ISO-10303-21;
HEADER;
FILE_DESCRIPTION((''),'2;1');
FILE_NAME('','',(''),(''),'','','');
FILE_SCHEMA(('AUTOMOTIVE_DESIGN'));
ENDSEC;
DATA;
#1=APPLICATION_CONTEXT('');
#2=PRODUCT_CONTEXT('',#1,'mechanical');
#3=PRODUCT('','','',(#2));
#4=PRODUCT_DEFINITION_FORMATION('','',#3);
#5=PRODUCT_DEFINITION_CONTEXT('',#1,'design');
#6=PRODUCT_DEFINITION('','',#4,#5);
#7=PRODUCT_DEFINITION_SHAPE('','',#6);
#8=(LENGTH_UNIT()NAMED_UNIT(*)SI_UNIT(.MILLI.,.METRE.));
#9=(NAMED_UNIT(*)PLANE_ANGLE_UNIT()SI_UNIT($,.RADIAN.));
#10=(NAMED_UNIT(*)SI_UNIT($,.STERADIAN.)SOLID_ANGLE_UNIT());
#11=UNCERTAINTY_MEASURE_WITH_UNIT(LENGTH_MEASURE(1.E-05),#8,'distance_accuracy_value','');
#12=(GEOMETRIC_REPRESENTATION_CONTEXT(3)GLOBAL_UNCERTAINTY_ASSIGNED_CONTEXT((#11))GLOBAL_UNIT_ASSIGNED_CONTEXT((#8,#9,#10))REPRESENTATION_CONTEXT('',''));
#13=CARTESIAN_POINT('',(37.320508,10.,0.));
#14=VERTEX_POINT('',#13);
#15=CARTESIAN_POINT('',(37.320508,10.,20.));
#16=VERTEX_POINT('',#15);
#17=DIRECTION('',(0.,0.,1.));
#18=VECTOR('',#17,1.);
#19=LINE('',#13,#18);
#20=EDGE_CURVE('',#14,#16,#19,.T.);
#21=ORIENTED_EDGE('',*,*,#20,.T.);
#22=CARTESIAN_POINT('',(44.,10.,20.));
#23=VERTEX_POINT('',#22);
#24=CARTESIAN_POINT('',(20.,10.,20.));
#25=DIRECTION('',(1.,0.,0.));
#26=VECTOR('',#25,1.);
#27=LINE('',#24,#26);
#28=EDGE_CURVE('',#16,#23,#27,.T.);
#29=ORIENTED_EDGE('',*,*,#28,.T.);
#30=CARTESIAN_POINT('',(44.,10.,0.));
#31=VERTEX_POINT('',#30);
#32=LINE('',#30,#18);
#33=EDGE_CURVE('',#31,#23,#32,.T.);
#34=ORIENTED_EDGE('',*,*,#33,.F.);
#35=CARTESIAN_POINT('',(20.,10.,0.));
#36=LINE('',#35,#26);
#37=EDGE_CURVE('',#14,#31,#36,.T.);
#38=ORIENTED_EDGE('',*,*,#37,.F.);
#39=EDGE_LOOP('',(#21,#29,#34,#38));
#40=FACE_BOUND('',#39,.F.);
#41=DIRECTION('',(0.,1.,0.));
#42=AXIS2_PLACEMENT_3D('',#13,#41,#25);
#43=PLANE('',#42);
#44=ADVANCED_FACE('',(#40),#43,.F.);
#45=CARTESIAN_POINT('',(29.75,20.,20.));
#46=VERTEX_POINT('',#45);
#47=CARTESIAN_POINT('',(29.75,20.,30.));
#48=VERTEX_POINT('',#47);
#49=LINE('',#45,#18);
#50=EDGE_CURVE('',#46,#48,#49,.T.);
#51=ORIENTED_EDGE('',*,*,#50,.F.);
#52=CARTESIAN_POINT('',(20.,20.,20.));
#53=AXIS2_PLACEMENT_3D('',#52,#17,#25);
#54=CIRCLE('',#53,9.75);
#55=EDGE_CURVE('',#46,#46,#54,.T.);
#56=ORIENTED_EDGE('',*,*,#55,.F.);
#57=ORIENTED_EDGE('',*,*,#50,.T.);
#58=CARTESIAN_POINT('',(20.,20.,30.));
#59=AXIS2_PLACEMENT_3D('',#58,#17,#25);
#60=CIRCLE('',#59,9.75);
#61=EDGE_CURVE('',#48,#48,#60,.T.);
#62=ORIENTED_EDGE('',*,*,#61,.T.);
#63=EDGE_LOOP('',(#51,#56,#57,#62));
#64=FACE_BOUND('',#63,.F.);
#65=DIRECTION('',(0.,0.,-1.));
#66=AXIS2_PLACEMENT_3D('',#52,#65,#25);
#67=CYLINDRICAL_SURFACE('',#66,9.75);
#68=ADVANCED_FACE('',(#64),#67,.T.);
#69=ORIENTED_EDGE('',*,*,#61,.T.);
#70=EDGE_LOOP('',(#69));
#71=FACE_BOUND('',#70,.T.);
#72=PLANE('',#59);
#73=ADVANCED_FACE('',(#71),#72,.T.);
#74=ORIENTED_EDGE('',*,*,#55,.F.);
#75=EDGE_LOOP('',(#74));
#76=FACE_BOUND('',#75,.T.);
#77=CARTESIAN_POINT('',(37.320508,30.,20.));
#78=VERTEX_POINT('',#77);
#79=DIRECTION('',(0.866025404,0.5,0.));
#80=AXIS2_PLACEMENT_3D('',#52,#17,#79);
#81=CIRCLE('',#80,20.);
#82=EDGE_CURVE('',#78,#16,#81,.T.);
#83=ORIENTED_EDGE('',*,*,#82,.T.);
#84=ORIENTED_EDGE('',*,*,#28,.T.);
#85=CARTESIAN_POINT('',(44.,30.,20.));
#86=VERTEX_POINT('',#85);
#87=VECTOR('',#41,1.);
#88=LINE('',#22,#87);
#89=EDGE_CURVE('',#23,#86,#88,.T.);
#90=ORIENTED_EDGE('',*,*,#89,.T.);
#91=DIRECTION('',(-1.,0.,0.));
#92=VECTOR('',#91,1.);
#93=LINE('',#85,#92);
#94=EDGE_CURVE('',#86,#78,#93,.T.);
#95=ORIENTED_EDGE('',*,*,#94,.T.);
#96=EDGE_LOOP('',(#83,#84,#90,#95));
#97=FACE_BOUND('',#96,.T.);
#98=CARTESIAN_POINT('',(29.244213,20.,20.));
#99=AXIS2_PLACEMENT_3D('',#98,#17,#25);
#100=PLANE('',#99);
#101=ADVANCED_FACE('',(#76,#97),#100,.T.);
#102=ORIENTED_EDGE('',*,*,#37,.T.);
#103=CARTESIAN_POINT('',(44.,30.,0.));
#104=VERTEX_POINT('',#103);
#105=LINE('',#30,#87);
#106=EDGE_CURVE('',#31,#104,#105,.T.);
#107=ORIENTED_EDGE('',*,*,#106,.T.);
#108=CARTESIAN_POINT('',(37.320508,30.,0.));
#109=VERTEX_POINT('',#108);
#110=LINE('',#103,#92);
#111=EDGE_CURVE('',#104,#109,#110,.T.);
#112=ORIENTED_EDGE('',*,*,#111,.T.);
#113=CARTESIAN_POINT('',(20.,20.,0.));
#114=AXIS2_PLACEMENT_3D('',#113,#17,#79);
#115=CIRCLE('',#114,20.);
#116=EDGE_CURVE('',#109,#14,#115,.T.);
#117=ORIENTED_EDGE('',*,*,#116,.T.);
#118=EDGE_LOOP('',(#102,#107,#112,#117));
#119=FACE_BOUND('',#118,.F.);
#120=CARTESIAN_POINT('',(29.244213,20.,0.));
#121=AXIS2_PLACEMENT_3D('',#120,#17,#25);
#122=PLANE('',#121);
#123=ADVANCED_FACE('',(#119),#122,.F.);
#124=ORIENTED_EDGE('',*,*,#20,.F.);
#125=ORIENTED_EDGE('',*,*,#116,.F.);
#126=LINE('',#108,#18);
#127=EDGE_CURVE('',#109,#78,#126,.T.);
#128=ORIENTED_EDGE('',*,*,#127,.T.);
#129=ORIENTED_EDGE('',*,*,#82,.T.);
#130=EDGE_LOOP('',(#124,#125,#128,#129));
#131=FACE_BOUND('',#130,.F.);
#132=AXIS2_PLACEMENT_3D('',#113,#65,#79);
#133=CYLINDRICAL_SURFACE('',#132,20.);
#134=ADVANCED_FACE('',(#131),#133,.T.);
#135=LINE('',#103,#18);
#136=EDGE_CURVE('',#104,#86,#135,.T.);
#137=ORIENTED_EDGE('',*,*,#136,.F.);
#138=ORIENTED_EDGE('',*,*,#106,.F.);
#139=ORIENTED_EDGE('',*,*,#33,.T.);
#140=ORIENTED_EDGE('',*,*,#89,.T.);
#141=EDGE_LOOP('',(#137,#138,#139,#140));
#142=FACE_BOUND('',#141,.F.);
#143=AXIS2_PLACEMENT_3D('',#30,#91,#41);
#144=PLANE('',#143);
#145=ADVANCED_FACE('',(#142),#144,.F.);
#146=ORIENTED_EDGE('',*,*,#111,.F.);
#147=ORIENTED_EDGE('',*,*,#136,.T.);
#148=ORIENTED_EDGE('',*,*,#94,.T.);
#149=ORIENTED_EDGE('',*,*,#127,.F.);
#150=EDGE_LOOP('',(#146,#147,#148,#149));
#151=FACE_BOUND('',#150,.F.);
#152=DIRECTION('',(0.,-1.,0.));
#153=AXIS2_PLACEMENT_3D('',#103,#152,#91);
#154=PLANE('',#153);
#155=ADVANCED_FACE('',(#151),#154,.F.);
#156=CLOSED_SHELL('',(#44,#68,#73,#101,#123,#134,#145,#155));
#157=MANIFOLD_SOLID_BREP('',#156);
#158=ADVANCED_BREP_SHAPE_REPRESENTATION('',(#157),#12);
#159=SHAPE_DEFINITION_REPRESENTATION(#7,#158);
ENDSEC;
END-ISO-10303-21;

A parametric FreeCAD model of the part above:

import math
import FreeCAD as App
import Part
import Sketcher
from FreeCAD import Vector

doc = App.newDocument("Part")
params = doc.addObject("Spreadsheet::Sheet", "Params")
for row, (alias, value) in enumerate([
    ("sketch1_radius", "20 mm"),
    ("sketch1_height", "20 mm"),
    ("pad1_length", "20 mm"),
    ("sketch2_diameter", "19.5 mm"),
    ("pad2_length", "10 mm"),
], start=1):
    params.set(f"A{row}", alias)
    params.set(f"B{row}", "=" + value)
    params.setAlias(f"B{row}", alias)

body = doc.addObject("PartDesign::Body", "Body")

sketch1 = body.newObject("Sketcher::SketchObject", "Sketch")
sketch1.AttachmentSupport = (doc.getObject("XY_Plane"), [""])
sketch1.MapMode = "FlatFace"
sketch1.addGeometry([
    Part.LineSegment(Vector(37.320508, 10, 0), Vector(44, 10, 0)),
    Part.LineSegment(Vector(44, 10, 0), Vector(44, 30, 0)),
    Part.LineSegment(Vector(44, 30, 0), Vector(37.320508, 30, 0)),
    Part.ArcOfCircle(Part.Circle(Vector(20, 20, 0), Vector(0, 0, 1), 20), math.radians(30), math.radians(330)),
], False)
sketch1.addConstraint([
    Sketcher.Constraint("Coincident", 0, 2, 1, 1),
    Sketcher.Constraint("Coincident", 1, 2, 2, 1),
    Sketcher.Constraint("Coincident", 2, 2, 3, 1),
    Sketcher.Constraint("Coincident", 3, 2, 0, 1),
    Sketcher.Constraint("Horizontal", 0),
    Sketcher.Constraint("Vertical", 1),
    Sketcher.Constraint("Horizontal", 2),
    Sketcher.Constraint("Vertical", 2, 2, 3, 2),
    Sketcher.Constraint("Radius", 3, 20.0),
    Sketcher.Constraint("DistanceY", 1, 1, 1, 2, 20.0),
    Sketcher.Constraint("DistanceX", -1, 1, 3, 3, 20.0),
    Sketcher.Constraint("DistanceY", -1, 1, 3, 3, 20.0),
    Sketcher.Constraint("DistanceX", -1, 1, 0, 2, 44.0),
])
sketch1.setExpression("Constraints[8]", "Params.sketch1_radius")
sketch1.setExpression("Constraints[9]", "Params.sketch1_height")
pad1 = body.newObject("PartDesign::Pad", "Pad")
pad1.Profile = sketch1
pad1.setExpression("Length", "Params.pad1_length")

sketch2 = body.newObject("Sketcher::SketchObject", "Sketch001")
sketch2.AttachmentSupport = (doc.getObject("XY_Plane"), [""])
sketch2.MapMode = "FlatFace"
sketch2.AttachmentOffset = App.Placement(Vector(0, 0, 20), App.Rotation())
sketch2.addGeometry(Part.Circle(Vector(20, 20, 0), Vector(0, 0, 1), 9.75), False)
sketch2.addConstraint([
    Sketcher.Constraint("Diameter", 0, 19.5),
    Sketcher.Constraint("DistanceX", -1, 1, 0, 3, 20.0),
    Sketcher.Constraint("DistanceY", -1, 1, 0, 3, 20.0),
])
sketch2.setExpression("Constraints[0]", "Params.sketch2_diameter")
pad2 = body.newObject("PartDesign::Pad", "Pad001")
pad2.Profile = sketch2
pad2.setExpression("Length", "Params.pad2_length")

doc.recompute()
